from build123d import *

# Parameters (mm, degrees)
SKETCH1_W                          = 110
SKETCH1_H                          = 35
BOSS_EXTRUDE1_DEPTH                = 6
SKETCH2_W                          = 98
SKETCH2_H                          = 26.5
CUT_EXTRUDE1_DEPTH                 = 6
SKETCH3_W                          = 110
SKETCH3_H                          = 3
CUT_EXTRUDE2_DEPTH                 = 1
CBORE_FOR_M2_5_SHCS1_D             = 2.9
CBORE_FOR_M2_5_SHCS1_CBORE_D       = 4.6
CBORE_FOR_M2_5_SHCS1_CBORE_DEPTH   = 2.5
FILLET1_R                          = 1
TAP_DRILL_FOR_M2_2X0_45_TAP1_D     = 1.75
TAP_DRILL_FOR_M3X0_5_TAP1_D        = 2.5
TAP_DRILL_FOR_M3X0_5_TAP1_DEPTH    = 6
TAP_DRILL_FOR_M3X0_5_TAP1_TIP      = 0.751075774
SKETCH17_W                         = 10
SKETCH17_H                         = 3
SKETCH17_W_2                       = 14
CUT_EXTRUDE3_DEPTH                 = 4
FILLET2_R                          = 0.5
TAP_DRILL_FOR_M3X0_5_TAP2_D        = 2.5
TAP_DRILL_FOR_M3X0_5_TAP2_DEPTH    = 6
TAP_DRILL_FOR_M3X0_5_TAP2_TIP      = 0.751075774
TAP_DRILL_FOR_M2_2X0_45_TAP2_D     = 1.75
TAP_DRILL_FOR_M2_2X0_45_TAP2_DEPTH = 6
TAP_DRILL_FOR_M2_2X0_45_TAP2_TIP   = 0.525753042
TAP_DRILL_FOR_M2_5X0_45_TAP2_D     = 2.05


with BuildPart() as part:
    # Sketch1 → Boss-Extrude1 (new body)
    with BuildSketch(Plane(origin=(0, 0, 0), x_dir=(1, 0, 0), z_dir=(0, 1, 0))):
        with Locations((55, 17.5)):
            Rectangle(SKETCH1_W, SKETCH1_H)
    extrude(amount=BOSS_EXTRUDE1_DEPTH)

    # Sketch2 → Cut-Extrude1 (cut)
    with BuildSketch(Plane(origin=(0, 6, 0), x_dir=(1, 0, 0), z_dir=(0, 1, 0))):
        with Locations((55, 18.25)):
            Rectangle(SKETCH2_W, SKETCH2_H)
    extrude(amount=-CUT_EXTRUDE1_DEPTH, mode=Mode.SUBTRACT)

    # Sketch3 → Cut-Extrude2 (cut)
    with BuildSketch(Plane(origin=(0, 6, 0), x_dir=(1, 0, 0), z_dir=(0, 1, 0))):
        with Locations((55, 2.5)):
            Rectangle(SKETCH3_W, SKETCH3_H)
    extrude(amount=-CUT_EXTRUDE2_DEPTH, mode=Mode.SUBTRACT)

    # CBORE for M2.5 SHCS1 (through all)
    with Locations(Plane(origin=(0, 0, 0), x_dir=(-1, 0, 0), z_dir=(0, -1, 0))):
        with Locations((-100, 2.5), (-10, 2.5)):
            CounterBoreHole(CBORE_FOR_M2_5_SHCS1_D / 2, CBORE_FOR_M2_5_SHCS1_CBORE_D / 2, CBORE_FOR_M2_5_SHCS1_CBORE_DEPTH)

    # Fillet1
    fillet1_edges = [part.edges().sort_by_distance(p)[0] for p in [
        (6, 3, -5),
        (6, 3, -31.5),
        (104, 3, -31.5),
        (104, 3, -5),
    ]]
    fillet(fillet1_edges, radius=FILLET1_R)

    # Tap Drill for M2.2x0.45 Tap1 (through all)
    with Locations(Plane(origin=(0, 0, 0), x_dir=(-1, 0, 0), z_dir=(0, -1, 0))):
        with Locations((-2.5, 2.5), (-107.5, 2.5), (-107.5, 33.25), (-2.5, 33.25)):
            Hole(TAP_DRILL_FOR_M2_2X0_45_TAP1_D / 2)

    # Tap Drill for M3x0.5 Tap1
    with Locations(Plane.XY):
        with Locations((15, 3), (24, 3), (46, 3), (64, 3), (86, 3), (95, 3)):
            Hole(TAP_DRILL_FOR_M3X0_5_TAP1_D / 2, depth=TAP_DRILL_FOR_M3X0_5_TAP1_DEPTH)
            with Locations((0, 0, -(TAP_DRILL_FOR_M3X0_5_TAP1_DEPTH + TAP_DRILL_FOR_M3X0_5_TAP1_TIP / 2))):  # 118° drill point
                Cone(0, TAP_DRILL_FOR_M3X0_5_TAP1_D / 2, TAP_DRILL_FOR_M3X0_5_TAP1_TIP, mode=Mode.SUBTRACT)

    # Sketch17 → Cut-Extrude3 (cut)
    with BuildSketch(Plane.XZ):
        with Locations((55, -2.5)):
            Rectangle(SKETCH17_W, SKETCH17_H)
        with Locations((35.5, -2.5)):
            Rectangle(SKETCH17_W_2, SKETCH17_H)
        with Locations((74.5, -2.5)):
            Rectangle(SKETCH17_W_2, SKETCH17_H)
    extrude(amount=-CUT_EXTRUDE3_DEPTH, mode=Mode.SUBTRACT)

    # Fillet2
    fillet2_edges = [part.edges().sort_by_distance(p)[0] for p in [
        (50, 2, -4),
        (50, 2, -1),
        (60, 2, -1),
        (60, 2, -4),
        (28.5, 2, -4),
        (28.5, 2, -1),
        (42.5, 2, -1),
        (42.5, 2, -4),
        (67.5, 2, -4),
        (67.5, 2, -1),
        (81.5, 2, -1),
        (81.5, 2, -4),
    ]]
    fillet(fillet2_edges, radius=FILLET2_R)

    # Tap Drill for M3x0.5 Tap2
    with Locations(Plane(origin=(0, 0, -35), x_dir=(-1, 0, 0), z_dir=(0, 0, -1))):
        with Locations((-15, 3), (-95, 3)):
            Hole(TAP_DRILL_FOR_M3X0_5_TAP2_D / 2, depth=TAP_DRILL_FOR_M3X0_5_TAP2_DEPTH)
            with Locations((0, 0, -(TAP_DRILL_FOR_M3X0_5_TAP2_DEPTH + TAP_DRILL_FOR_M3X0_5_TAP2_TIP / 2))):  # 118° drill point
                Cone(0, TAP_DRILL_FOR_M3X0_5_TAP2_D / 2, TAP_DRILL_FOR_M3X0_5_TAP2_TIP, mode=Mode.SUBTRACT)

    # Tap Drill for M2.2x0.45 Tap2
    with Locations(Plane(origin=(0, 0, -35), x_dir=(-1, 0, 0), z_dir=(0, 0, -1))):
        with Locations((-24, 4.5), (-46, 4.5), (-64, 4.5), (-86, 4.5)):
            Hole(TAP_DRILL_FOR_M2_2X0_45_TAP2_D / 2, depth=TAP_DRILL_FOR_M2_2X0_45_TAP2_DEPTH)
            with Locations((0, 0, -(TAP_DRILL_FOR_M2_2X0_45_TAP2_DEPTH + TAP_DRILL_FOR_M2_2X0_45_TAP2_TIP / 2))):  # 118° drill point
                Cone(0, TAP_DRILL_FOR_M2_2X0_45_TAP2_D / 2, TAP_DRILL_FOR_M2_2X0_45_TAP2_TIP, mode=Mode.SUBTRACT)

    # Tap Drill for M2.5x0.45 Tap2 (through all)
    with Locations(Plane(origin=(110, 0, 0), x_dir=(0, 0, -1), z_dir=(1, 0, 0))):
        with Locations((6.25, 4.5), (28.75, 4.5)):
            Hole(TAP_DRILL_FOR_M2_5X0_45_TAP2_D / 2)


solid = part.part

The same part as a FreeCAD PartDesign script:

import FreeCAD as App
import Part
import Sketcher
from FreeCAD import Vector
Q = App.Units.Quantity


def edges_at(feature, points):
    """Names of the edges that pass closest to the given points."""
    edges = feature.Shape.Edges
    near = lambda p: min(range(len(edges)), key=lambda i: edges[i].distToShape(Part.Vertex(*p))[0])
    return sorted({f"Edge{near(p) + 1}" for p in points})


def add_polygon(sketch, points):
    """Adds a closed chain of lines whose ends are joined by coincident constraints."""
    first, n = sketch.GeometryCount, len(points)
    for a, b in zip(points, points[1:] + points[:1]):
        sketch.addGeometry(Part.LineSegment(App.Vector(*a, 0), App.Vector(*b, 0)), False)
    for i in range(n):
        sketch.addConstraint(Sketcher.Constraint("Coincident", first + i, 2, first + (i + 1) % n, 1))

doc = App.newDocument("Part")
params = doc.addObject("Spreadsheet::Sheet", "Params")
for row, (alias, value) in enumerate([
    ("sketch1_width", "110 mm"),
    ("sketch1_height", "35 mm"),
    ("pad1_length", "6 mm"),
    ("sketch2_width", "98 mm"),
    ("sketch2_height", "26.5 mm"),
    ("pocket1_length", "6 mm"),
    ("sketch3_width", "110 mm"),
    ("sketch3_height", "3 mm"),
    ("pocket2_length", "1 mm"),
    ("sketch4_diameter", "2.9 mm"),
    ("hole_diameter", "2.9 mm"),
    ("hole_cbore_diameter", "4.6 mm"),
    ("hole_cbore_depth", "2.5 mm"),
    ("fillet_radius", "1 mm"),
    ("sketch5_diameter", "1.75 mm"),
    ("hole2_diameter", "1.75 mm"),
    ("sketch6_diameter", "2.5 mm"),
    ("hole3_diameter", "2.5 mm"),
    ("hole3_depth", "6 mm"),
    ("sketch7_width", "10 mm"),
    ("sketch7_width2", "14 mm"),
    ("sketch7_height", "3 mm"),
    ("pocket3_length", "4 mm"),
    ("fillet2_radius", "0.5 mm"),
    ("sketch8_diameter", "2.5 mm"),
    ("hole4_diameter", "2.5 mm"),
    ("hole4_depth", "6 mm"),
    ("sketch9_diameter", "1.75 mm"),
    ("hole5_diameter", "1.75 mm"),
    ("hole5_depth", "6 mm"),
    ("sketch10_diameter", "2.05 mm"),
    ("hole6_diameter", "2.05 mm"),
], start=1):
    params.set(f"A{row}", alias)
    params.set(f"B{row}", "=" + value)
    params.setAlias(f"B{row}", alias)

body = doc.addObject("PartDesign::Body", "Body")

sketch1 = body.newObject("Sketcher::SketchObject", "Sketch")
sketch1.AttachmentSupport = (doc.getObject("XZ_Plane"), [""])
sketch1.MapMode = "FlatFace"
add_polygon(sketch1, [(0, -35), (0, 0), (110, 0), (110, -35)])
sketch1.addConstraint([
    Sketcher.Constraint("Vertical", 0),
    Sketcher.Constraint("Horizontal", 1),
    Sketcher.Constraint("Vertical", 2),
    Sketcher.Constraint("Horizontal", 3),
    Sketcher.Constraint("Coincident", 0, 2, -1, 1),
    Sketcher.Constraint("DistanceX", 1, 1, 1, 2, Q("110 mm")),
    Sketcher.Constraint("DistanceY", 0, 1, 0, 2, Q("35 mm")),
])
sketch1.setExpression("Constraints[9]", "Params.sketch1_width")
sketch1.setExpression("Constraints[10]", "Params.sketch1_height")
pad1 = body.newObject("PartDesign::Pad", "Pad")
pad1.Profile = sketch1
pad1.setExpression("Length", "Params.pad1_length")
pad1.Reversed = True

sketch2 = body.newObject("Sketcher::SketchObject", "Sketch001")
sketch2.AttachmentSupport = (doc.getObject("XZ_Plane"), [""])
sketch2.MapMode = "FlatFace"
sketch2.AttachmentOffset = App.Placement(Vector(0, 0, -6), App.Rotation())
add_polygon(sketch2, [(6, -31.5), (6, -5), (104, -5), (104, -31.5)])
sketch2.addConstraint([
    Sketcher.Constraint("Vertical", 0),
    Sketcher.Constraint("Horizontal", 1),
    Sketcher.Constraint("Vertical", 2),
    Sketcher.Constraint("Horizontal", 3),
    Sketcher.Constraint("DistanceX", 1, 1, 1, 2, Q("98 mm")),
    Sketcher.Constraint("DistanceY", 0, 1, 0, 2, Q("26.5 mm")),
    Sketcher.Constraint("DistanceX", -1, 1, 0, 2, Q("6 mm")),
    Sketcher.Constraint("DistanceY", 0, 2, -1, 1, Q("5 mm")),
])
sketch2.setExpression("Constraints[8]", "Params.sketch2_width")
sketch2.setExpression("Constraints[9]", "Params.sketch2_height")
pocket1 = body.newObject("PartDesign::Pocket", "Pocket")
pocket1.Profile = sketch2
pocket1.setExpression("Length", "Params.pocket1_length")
pocket1.Reversed = True

sketch3 = body.newObject("Sketcher::SketchObject", "Sketch002")
sketch3.AttachmentSupport = (doc.getObject("XZ_Plane"), [""])
sketch3.MapMode = "FlatFace"
sketch3.AttachmentOffset = App.Placement(Vector(0, 0, -6), App.Rotation())
add_polygon(sketch3, [(0, -4), (0, -1), (110, -1), (110, -4)])
sketch3.addConstraint([
    Sketcher.Constraint("Vertical", 0),
    Sketcher.Constraint("Horizontal", 1),
    Sketcher.Constraint("Vertical", 2),
    Sketcher.Constraint("Horizontal", 3),
    Sketcher.Constraint("PointOnObject", 0, 2, -2),
    Sketcher.Constraint("DistanceX", 1, 1, 1, 2, Q("110 mm")),
    Sketcher.Constraint("DistanceY", 0, 1, 0, 2, Q("3 mm")),
    Sketcher.Constraint("DistanceY", 0, 2, -1, 1, Q("1 mm")),
])
sketch3.setExpression("Constraints[9]", "Params.sketch3_width")
sketch3.setExpression("Constraints[10]", "Params.sketch3_height")
pocket2 = body.newObject("PartDesign::Pocket", "Pocket001")
pocket2.Profile = sketch3
pocket2.setExpression("Length", "Params.pocket2_length")
pocket2.Reversed = True

sketch4 = body.newObject("Sketcher::SketchObject", "Sketch003")
sketch4.AttachmentSupport = (doc.getObject("XZ_Plane"), [""])
sketch4.MapMode = "FlatFace"
sketch4.addGeometry([
    Part.Circle(Vector(100, -2.5, 0), Vector(0, 0, 1), 1.45),
    Part.Circle(Vector(10, -2.5, 0), Vector(0, 0, 1), 1.45),
], False)
sketch4.addConstraint([
    Sketcher.Constraint("Equal", 0, 1),
    Sketcher.Constraint("Horizontal", 0, 3, 1, 3),
    Sketcher.Constraint("Diameter", 0, Q("2.9 mm")),
    Sketcher.Constraint("DistanceX", -1, 1, 0, 3, Q("100 mm")),
    Sketcher.Constraint("DistanceX", -1, 1, 1, 3, Q("10 mm")),
    Sketcher.Constraint("DistanceY", 0, 3, -1, 1, Q("2.5 mm")),
])
sketch4.setExpression("Constraints[2]", "Params.sketch4_diameter")
doc.recompute()
hole = body.newObject("PartDesign::Hole", "Hole")
hole.Profile = sketch4
hole.ThreadType = "None"
hole.setExpression("Diameter", "Params.hole_diameter")
hole.DepthType = "ThroughAll"
hole.HoleCutType = "Counterbore"
hole.setExpression("HoleCutDiameter", "Params.hole_cbore_diameter")
hole.setExpression("HoleCutDepth", "Params.hole_cbore_depth")
doc.recompute()

fillet = body.newObject("PartDesign::Fillet", "Fillet")
fillet.Base = (hole, edges_at(hole, [
    (6, 3, -5),
    (6, 3, -31.5),
    (104, 3, -31.5),
    (104, 3, -5),
]))
fillet.setExpression("Radius", "Params.fillet_radius")

sketch5 = body.newObject("Sketcher::SketchObject", "Sketch004")
sketch5.AttachmentSupport = (doc.getObject("XZ_Plane"), [""])
sketch5.MapMode = "FlatFace"
sketch5.addGeometry([
    Part.Circle(Vector(2.5, -2.5, 0), Vector(0, 0, 1), 0.875),
    Part.Circle(Vector(107.5, -2.5, 0), Vector(0, 0, 1), 0.875),
    Part.Circle(Vector(107.5, -33.25, 0), Vector(0, 0, 1), 0.875),
    Part.Circle(Vector(2.5, -33.25, 0), Vector(0, 0, 1), 0.875),
], False)
sketch5.addConstraint([
    Sketcher.Constraint("Equal", 0, 1),
    Sketcher.Constraint("Equal", 1, 2),
    Sketcher.Constraint("Equal", 2, 3),
    Sketcher.Constraint("Horizontal", 0, 3, 1, 3),
    Sketcher.Constraint("Horizontal", 2, 3, 3, 3),
    Sketcher.Constraint("Vertical", 1, 3, 2, 3),
    Sketcher.Constraint("Vertical", 0, 3, 3, 3),
    Sketcher.Constraint("Diameter", 0, Q("1.75 mm")),
    Sketcher.Constraint("DistanceX", 0, 3, 1, 3, Q("105 mm")),
    Sketcher.Constraint("DistanceX", -1, 1, 0, 3, Q("2.5 mm")),
    Sketcher.Constraint("DistanceY", 0, 3, -1, 1, Q("2.5 mm")),
    Sketcher.Constraint("DistanceY", 2, 3, -1, 1, Q("33.25 mm")),
])
sketch5.setExpression("Constraints[7]", "Params.sketch5_diameter")
doc.recompute()
hole2 = body.newObject("PartDesign::Hole", "Hole001")
hole2.Profile = sketch5
hole2.ThreadType = "None"
hole2.setExpression("Diameter", "Params.hole2_diameter")
hole2.DepthType = "ThroughAll"

sketch6 = body.newObject("Sketcher::SketchObject", "Sketch005")
sketch6.AttachmentSupport = (doc.getObject("XY_Plane"), [""])
sketch6.MapMode = "FlatFace"
sketch6.addGeometry([
    Part.Circle(Vector(15, 3, 0), Vector(0, 0, 1), 1.25),
    Part.Circle(Vector(24, 3, 0), Vector(0, 0, 1), 1.25),
    Part.Circle(Vector(46, 3, 0), Vector(0, 0, 1), 1.25),
    Part.Circle(Vector(64, 3, 0), Vector(0, 0, 1), 1.25),
    Part.Circle(Vector(86, 3, 0), Vector(0, 0, 1), 1.25),
    Part.Circle(Vector(95, 3, 0), Vector(0, 0, 1), 1.25),
], False)
sketch6.addConstraint([
    Sketcher.Constraint("Equal", 0, 1),
    Sketcher.Constraint("Equal", 1, 2),
    Sketcher.Constraint("Equal", 2, 3),
    Sketcher.Constraint("Equal", 3, 4),
    Sketcher.Constraint("Equal", 4, 5),
    Sketcher.Constraint("Horizontal", 0, 3, 1, 3),
    Sketcher.Constraint("Horizontal", 1, 3, 2, 3),
    Sketcher.Constraint("Horizontal", 2, 3, 3, 3),
    Sketcher.Constraint("Horizontal", 3, 3, 4, 3),
    Sketcher.Constraint("Horizontal", 4, 3, 5, 3),
    Sketcher.Constraint("Diameter", 0, Q("2.5 mm")),
    Sketcher.Constraint("DistanceX", -1, 1, 0, 3, Q("15 mm")),
    Sketcher.Constraint("DistanceY", -1, 1, 0, 3, Q("3 mm")),
    Sketcher.Constraint("DistanceX", -1, 1, 1, 3, Q("24 mm")),
    Sketcher.Constraint("DistanceX", -1, 1, 2, 3, Q("46 mm")),
    Sketcher.Constraint("DistanceX", -1, 1, 3, 3, Q("64 mm")),
    Sketcher.Constraint("DistanceX", -1, 1, 4, 3, Q("86 mm")),
    Sketcher.Constraint("DistanceX", -1, 1, 5, 3, Q("95 mm")),
])
sketch6.setExpression("Constraints[10]", "Params.sketch6_diameter")
doc.recompute()
hole3 = body.newObject("PartDesign::Hole", "Hole002")
hole3.Profile = sketch6
hole3.ThreadType = "None"
hole3.setExpression("Diameter", "Params.hole3_diameter")
hole3.DepthType = "Dimension"
hole3.setExpression("Depth", "Params.hole3_depth")
hole3.DrillPoint = "Angled"
hole3.DrillPointAngle = 118

sketch7 = body.newObject("Sketcher::SketchObject", "Sketch006")
sketch7.AttachmentSupport = (doc.getObject("XZ_Plane"), [""])
sketch7.MapMode = "FlatFace"
add_polygon(sketch7, [(50, -1), (50, -4), (60, -4), (60, -1)])
add_polygon(sketch7, [(28.5, -1), (28.5, -4), (42.5, -4), (42.5, -1)])
add_polygon(sketch7, [(67.5, -1), (67.5, -4), (81.5, -4), (81.5, -1)])
sketch7.addConstraint([
    Sketcher.Constraint("Vertical", 0),
    Sketcher.Constraint("Horizontal", 1),
    Sketcher.Constraint("Vertical", 2),
    Sketcher.Constraint("Horizontal", 3),
    Sketcher.Constraint("Vertical", 4),
    Sketcher.Constraint("Horizontal", 5),
    Sketcher.Constraint("Vertical", 6),
    Sketcher.Constraint("Horizontal", 7),
    Sketcher.Constraint("Vertical", 8),
    Sketcher.Constraint("Horizontal", 9),
    Sketcher.Constraint("Vertical", 10),
    Sketcher.Constraint("Horizontal", 11),
    Sketcher.Constraint("Horizontal", 1, 2, 4, 2),
    Sketcher.Constraint("Horizontal", 3, 2, 6, 2),
    Sketcher.Constraint("Horizontal", 5, 2, 8, 2),
    Sketcher.Constraint("Horizontal", 7, 2, 10, 2),
    Sketcher.Constraint("Equal", 7, 9),
    Sketcher.Constraint("DistanceX", 1, 1, 1, 2, Q("10 mm")),
    Sketcher.Constraint("DistanceX", 5, 1, 5, 2, Q("14 mm")),
    Sketcher.Constraint("DistanceY", 0, 2, 0, 1, Q("3 mm")),
    Sketcher.Constraint("DistanceX", -1, 1, 0, 2, Q("50 mm")),
    Sketcher.Constraint("DistanceY", 0, 2, -1, 1, Q("4 mm")),
    Sketcher.Constraint("DistanceX", 5, 2, 8, 2, Q("25 mm")),
    Sketcher.Constraint("DistanceX", -1, 1, 4, 2, Q("28.5 mm")),
])
sketch7.setExpression("Constraints[29]", "Params.sketch7_width")
sketch7.setExpression("Constraints[30]", "Params.sketch7_width2")
sketch7.setExpression("Constraints[31]", "Params.sketch7_height")
pocket3 = body.newObject("PartDesign::Pocket", "Pocket002")
pocket3.Profile = sketch7
pocket3.setExpression("Length", "Params.pocket3_length")
doc.recompute()

fillet2 = body.newObject("PartDesign::Fillet", "Fillet001")
fillet2.Base = (pocket3, edges_at(pocket3, [
    (50, 2, -4),
    (50, 2, -1),
    (60, 2, -1),
    (60, 2, -4),
    (28.5, 2, -4),
    (28.5, 2, -1),
    (42.5, 2, -1),
    (42.5, 2, -4),
    (67.5, 2, -4),
    (67.5, 2, -1),
    (81.5, 2, -1),
    (81.5, 2, -4),
]))
fillet2.setExpression("Radius", "Params.fillet2_radius")

sketch8 = body.newObject("Sketcher::SketchObject", "Sketch007")
sketch8.AttachmentSupport = (doc.getObject("XY_Plane"), [""])
sketch8.MapMode = "FlatFace"
sketch8.AttachmentOffset = App.Placement(Vector(0, 0, -35), App.Rotation())
sketch8.addGeometry([
    Part.Circle(Vector(15, 3, 0), Vector(0, 0, 1), 1.25),
    Part.Circle(Vector(95, 3, 0), Vector(0, 0, 1), 1.25),
], False)
sketch8.addConstraint([
    Sketcher.Constraint("Equal", 0, 1),
    Sketcher.Constraint("Horizontal", 0, 3, 1, 3),
    Sketcher.Constraint("Diameter", 0, Q("2.5 mm")),
    Sketcher.Constraint("DistanceX", -1, 1, 0, 3, Q("15 mm")),
    Sketcher.Constraint("DistanceY", -1, 1, 0, 3, Q("3 mm")),
    Sketcher.Constraint("DistanceX", -1, 1, 1, 3, Q("95 mm")),
])
sketch8.setExpression("Constraints[2]", "Params.sketch8_diameter")
doc.recompute()
hole4 = body.newObject("PartDesign::Hole", "Hole003")
hole4.Profile = sketch8
hole4.ThreadType = "None"
hole4.setExpression("Diameter", "Params.hole4_diameter")
hole4.DepthType = "Dimension"
hole4.setExpression("Depth", "Params.hole4_depth")
hole4.DrillPoint = "Angled"
hole4.DrillPointAngle = 118
hole4.Reversed = True

sketch9 = body.newObject("Sketcher::SketchObject", "Sketch008")
sketch9.AttachmentSupport = (doc.getObject("XY_Plane"), [""])
sketch9.MapMode = "FlatFace"
sketch9.AttachmentOffset = App.Placement(Vector(0, 0, -35), App.Rotation())
sketch9.addGeometry([
    Part.Circle(Vector(24, 4.5, 0), Vector(0, 0, 1), 0.875),
    Part.Circle(Vector(46, 4.5, 0), Vector(0, 0, 1), 0.875),
    Part.Circle(Vector(64, 4.5, 0), Vector(0, 0, 1), 0.875),
    Part.Circle(Vector(86, 4.5, 0), Vector(0, 0, 1), 0.875),
], False)
sketch9.addConstraint([
    Sketcher.Constraint("Equal", 0, 1),
    Sketcher.Constraint("Equal", 1, 2),
    Sketcher.Constraint("Equal", 2, 3),
    Sketcher.Constraint("Horizontal", 0, 3, 1, 3),
    Sketcher.Constraint("Horizontal", 1, 3, 2, 3),
    Sketcher.Constraint("Horizontal", 2, 3, 3, 3),
    Sketcher.Constraint("Diameter", 0, Q("1.75 mm")),
    Sketcher.Constraint("DistanceX", -1, 1, 0, 3, Q("24 mm")),
    Sketcher.Constraint("DistanceX", -1, 1, 1, 3, Q("46 mm")),
    Sketcher.Constraint("DistanceX", -1, 1, 2, 3, Q("64 mm")),
    Sketcher.Constraint("DistanceX", -1, 1, 3, 3, Q("86 mm")),
    Sketcher.Constraint("DistanceY", -1, 1, 0, 3, Q("4.5 mm")),
])
sketch9.setExpression("Constraints[6]", "Params.sketch9_diameter")
doc.recompute()
hole5 = body.newObject("PartDesign::Hole", "Hole004")
hole5.Profile = sketch9
hole5.ThreadType = "None"
hole5.setExpression("Diameter", "Params.hole5_diameter")
hole5.DepthType = "Dimension"
hole5.setExpression("Depth", "Params.hole5_depth")
hole5.DrillPoint = "Angled"
hole5.DrillPointAngle = 118
hole5.Reversed = True

sketch10 = body.newObject("Sketcher::SketchObject", "Sketch009")
sketch10.AttachmentSupport = (doc.getObject("YZ_Plane"), [""])
sketch10.MapMode = "FlatFace"
sketch10.AttachmentOffset = App.Placement(Vector(0, 0, 110), App.Rotation())
sketch10.addGeometry([
    Part.Circle(Vector(4.5, -6.25, 0), Vector(0, 0, 1), 1.025),
    Part.Circle(Vector(4.5, -28.75, 0), Vector(0, 0, 1), 1.025),
], False)
sketch10.addConstraint([
    Sketcher.Constraint("Equal", 0, 1),
    Sketcher.Constraint("Vertical", 0, 3, 1, 3),
    Sketcher.Constraint("Diameter", 0, Q("2.05 mm")),
    Sketcher.Constraint("DistanceX", -1, 1, 0, 3, Q("4.5 mm")),
    Sketcher.Constraint("DistanceY", 1, 3, 0, 3, Q("22.5 mm")),
    Sketcher.Constraint("DistanceY", 0, 3, -1, 1, Q("6.25 mm")),
])
sketch10.setExpression("Constraints[2]", "Params.sketch10_diameter")
doc.recompute()
hole6 = body.newObject("PartDesign::Hole", "Hole005")
hole6.Profile = sketch10
hole6.ThreadType = "None"
hole6.setExpression("Diameter", "Params.hole6_diameter")
hole6.DepthType = "ThroughAll"

doc.recompute()
